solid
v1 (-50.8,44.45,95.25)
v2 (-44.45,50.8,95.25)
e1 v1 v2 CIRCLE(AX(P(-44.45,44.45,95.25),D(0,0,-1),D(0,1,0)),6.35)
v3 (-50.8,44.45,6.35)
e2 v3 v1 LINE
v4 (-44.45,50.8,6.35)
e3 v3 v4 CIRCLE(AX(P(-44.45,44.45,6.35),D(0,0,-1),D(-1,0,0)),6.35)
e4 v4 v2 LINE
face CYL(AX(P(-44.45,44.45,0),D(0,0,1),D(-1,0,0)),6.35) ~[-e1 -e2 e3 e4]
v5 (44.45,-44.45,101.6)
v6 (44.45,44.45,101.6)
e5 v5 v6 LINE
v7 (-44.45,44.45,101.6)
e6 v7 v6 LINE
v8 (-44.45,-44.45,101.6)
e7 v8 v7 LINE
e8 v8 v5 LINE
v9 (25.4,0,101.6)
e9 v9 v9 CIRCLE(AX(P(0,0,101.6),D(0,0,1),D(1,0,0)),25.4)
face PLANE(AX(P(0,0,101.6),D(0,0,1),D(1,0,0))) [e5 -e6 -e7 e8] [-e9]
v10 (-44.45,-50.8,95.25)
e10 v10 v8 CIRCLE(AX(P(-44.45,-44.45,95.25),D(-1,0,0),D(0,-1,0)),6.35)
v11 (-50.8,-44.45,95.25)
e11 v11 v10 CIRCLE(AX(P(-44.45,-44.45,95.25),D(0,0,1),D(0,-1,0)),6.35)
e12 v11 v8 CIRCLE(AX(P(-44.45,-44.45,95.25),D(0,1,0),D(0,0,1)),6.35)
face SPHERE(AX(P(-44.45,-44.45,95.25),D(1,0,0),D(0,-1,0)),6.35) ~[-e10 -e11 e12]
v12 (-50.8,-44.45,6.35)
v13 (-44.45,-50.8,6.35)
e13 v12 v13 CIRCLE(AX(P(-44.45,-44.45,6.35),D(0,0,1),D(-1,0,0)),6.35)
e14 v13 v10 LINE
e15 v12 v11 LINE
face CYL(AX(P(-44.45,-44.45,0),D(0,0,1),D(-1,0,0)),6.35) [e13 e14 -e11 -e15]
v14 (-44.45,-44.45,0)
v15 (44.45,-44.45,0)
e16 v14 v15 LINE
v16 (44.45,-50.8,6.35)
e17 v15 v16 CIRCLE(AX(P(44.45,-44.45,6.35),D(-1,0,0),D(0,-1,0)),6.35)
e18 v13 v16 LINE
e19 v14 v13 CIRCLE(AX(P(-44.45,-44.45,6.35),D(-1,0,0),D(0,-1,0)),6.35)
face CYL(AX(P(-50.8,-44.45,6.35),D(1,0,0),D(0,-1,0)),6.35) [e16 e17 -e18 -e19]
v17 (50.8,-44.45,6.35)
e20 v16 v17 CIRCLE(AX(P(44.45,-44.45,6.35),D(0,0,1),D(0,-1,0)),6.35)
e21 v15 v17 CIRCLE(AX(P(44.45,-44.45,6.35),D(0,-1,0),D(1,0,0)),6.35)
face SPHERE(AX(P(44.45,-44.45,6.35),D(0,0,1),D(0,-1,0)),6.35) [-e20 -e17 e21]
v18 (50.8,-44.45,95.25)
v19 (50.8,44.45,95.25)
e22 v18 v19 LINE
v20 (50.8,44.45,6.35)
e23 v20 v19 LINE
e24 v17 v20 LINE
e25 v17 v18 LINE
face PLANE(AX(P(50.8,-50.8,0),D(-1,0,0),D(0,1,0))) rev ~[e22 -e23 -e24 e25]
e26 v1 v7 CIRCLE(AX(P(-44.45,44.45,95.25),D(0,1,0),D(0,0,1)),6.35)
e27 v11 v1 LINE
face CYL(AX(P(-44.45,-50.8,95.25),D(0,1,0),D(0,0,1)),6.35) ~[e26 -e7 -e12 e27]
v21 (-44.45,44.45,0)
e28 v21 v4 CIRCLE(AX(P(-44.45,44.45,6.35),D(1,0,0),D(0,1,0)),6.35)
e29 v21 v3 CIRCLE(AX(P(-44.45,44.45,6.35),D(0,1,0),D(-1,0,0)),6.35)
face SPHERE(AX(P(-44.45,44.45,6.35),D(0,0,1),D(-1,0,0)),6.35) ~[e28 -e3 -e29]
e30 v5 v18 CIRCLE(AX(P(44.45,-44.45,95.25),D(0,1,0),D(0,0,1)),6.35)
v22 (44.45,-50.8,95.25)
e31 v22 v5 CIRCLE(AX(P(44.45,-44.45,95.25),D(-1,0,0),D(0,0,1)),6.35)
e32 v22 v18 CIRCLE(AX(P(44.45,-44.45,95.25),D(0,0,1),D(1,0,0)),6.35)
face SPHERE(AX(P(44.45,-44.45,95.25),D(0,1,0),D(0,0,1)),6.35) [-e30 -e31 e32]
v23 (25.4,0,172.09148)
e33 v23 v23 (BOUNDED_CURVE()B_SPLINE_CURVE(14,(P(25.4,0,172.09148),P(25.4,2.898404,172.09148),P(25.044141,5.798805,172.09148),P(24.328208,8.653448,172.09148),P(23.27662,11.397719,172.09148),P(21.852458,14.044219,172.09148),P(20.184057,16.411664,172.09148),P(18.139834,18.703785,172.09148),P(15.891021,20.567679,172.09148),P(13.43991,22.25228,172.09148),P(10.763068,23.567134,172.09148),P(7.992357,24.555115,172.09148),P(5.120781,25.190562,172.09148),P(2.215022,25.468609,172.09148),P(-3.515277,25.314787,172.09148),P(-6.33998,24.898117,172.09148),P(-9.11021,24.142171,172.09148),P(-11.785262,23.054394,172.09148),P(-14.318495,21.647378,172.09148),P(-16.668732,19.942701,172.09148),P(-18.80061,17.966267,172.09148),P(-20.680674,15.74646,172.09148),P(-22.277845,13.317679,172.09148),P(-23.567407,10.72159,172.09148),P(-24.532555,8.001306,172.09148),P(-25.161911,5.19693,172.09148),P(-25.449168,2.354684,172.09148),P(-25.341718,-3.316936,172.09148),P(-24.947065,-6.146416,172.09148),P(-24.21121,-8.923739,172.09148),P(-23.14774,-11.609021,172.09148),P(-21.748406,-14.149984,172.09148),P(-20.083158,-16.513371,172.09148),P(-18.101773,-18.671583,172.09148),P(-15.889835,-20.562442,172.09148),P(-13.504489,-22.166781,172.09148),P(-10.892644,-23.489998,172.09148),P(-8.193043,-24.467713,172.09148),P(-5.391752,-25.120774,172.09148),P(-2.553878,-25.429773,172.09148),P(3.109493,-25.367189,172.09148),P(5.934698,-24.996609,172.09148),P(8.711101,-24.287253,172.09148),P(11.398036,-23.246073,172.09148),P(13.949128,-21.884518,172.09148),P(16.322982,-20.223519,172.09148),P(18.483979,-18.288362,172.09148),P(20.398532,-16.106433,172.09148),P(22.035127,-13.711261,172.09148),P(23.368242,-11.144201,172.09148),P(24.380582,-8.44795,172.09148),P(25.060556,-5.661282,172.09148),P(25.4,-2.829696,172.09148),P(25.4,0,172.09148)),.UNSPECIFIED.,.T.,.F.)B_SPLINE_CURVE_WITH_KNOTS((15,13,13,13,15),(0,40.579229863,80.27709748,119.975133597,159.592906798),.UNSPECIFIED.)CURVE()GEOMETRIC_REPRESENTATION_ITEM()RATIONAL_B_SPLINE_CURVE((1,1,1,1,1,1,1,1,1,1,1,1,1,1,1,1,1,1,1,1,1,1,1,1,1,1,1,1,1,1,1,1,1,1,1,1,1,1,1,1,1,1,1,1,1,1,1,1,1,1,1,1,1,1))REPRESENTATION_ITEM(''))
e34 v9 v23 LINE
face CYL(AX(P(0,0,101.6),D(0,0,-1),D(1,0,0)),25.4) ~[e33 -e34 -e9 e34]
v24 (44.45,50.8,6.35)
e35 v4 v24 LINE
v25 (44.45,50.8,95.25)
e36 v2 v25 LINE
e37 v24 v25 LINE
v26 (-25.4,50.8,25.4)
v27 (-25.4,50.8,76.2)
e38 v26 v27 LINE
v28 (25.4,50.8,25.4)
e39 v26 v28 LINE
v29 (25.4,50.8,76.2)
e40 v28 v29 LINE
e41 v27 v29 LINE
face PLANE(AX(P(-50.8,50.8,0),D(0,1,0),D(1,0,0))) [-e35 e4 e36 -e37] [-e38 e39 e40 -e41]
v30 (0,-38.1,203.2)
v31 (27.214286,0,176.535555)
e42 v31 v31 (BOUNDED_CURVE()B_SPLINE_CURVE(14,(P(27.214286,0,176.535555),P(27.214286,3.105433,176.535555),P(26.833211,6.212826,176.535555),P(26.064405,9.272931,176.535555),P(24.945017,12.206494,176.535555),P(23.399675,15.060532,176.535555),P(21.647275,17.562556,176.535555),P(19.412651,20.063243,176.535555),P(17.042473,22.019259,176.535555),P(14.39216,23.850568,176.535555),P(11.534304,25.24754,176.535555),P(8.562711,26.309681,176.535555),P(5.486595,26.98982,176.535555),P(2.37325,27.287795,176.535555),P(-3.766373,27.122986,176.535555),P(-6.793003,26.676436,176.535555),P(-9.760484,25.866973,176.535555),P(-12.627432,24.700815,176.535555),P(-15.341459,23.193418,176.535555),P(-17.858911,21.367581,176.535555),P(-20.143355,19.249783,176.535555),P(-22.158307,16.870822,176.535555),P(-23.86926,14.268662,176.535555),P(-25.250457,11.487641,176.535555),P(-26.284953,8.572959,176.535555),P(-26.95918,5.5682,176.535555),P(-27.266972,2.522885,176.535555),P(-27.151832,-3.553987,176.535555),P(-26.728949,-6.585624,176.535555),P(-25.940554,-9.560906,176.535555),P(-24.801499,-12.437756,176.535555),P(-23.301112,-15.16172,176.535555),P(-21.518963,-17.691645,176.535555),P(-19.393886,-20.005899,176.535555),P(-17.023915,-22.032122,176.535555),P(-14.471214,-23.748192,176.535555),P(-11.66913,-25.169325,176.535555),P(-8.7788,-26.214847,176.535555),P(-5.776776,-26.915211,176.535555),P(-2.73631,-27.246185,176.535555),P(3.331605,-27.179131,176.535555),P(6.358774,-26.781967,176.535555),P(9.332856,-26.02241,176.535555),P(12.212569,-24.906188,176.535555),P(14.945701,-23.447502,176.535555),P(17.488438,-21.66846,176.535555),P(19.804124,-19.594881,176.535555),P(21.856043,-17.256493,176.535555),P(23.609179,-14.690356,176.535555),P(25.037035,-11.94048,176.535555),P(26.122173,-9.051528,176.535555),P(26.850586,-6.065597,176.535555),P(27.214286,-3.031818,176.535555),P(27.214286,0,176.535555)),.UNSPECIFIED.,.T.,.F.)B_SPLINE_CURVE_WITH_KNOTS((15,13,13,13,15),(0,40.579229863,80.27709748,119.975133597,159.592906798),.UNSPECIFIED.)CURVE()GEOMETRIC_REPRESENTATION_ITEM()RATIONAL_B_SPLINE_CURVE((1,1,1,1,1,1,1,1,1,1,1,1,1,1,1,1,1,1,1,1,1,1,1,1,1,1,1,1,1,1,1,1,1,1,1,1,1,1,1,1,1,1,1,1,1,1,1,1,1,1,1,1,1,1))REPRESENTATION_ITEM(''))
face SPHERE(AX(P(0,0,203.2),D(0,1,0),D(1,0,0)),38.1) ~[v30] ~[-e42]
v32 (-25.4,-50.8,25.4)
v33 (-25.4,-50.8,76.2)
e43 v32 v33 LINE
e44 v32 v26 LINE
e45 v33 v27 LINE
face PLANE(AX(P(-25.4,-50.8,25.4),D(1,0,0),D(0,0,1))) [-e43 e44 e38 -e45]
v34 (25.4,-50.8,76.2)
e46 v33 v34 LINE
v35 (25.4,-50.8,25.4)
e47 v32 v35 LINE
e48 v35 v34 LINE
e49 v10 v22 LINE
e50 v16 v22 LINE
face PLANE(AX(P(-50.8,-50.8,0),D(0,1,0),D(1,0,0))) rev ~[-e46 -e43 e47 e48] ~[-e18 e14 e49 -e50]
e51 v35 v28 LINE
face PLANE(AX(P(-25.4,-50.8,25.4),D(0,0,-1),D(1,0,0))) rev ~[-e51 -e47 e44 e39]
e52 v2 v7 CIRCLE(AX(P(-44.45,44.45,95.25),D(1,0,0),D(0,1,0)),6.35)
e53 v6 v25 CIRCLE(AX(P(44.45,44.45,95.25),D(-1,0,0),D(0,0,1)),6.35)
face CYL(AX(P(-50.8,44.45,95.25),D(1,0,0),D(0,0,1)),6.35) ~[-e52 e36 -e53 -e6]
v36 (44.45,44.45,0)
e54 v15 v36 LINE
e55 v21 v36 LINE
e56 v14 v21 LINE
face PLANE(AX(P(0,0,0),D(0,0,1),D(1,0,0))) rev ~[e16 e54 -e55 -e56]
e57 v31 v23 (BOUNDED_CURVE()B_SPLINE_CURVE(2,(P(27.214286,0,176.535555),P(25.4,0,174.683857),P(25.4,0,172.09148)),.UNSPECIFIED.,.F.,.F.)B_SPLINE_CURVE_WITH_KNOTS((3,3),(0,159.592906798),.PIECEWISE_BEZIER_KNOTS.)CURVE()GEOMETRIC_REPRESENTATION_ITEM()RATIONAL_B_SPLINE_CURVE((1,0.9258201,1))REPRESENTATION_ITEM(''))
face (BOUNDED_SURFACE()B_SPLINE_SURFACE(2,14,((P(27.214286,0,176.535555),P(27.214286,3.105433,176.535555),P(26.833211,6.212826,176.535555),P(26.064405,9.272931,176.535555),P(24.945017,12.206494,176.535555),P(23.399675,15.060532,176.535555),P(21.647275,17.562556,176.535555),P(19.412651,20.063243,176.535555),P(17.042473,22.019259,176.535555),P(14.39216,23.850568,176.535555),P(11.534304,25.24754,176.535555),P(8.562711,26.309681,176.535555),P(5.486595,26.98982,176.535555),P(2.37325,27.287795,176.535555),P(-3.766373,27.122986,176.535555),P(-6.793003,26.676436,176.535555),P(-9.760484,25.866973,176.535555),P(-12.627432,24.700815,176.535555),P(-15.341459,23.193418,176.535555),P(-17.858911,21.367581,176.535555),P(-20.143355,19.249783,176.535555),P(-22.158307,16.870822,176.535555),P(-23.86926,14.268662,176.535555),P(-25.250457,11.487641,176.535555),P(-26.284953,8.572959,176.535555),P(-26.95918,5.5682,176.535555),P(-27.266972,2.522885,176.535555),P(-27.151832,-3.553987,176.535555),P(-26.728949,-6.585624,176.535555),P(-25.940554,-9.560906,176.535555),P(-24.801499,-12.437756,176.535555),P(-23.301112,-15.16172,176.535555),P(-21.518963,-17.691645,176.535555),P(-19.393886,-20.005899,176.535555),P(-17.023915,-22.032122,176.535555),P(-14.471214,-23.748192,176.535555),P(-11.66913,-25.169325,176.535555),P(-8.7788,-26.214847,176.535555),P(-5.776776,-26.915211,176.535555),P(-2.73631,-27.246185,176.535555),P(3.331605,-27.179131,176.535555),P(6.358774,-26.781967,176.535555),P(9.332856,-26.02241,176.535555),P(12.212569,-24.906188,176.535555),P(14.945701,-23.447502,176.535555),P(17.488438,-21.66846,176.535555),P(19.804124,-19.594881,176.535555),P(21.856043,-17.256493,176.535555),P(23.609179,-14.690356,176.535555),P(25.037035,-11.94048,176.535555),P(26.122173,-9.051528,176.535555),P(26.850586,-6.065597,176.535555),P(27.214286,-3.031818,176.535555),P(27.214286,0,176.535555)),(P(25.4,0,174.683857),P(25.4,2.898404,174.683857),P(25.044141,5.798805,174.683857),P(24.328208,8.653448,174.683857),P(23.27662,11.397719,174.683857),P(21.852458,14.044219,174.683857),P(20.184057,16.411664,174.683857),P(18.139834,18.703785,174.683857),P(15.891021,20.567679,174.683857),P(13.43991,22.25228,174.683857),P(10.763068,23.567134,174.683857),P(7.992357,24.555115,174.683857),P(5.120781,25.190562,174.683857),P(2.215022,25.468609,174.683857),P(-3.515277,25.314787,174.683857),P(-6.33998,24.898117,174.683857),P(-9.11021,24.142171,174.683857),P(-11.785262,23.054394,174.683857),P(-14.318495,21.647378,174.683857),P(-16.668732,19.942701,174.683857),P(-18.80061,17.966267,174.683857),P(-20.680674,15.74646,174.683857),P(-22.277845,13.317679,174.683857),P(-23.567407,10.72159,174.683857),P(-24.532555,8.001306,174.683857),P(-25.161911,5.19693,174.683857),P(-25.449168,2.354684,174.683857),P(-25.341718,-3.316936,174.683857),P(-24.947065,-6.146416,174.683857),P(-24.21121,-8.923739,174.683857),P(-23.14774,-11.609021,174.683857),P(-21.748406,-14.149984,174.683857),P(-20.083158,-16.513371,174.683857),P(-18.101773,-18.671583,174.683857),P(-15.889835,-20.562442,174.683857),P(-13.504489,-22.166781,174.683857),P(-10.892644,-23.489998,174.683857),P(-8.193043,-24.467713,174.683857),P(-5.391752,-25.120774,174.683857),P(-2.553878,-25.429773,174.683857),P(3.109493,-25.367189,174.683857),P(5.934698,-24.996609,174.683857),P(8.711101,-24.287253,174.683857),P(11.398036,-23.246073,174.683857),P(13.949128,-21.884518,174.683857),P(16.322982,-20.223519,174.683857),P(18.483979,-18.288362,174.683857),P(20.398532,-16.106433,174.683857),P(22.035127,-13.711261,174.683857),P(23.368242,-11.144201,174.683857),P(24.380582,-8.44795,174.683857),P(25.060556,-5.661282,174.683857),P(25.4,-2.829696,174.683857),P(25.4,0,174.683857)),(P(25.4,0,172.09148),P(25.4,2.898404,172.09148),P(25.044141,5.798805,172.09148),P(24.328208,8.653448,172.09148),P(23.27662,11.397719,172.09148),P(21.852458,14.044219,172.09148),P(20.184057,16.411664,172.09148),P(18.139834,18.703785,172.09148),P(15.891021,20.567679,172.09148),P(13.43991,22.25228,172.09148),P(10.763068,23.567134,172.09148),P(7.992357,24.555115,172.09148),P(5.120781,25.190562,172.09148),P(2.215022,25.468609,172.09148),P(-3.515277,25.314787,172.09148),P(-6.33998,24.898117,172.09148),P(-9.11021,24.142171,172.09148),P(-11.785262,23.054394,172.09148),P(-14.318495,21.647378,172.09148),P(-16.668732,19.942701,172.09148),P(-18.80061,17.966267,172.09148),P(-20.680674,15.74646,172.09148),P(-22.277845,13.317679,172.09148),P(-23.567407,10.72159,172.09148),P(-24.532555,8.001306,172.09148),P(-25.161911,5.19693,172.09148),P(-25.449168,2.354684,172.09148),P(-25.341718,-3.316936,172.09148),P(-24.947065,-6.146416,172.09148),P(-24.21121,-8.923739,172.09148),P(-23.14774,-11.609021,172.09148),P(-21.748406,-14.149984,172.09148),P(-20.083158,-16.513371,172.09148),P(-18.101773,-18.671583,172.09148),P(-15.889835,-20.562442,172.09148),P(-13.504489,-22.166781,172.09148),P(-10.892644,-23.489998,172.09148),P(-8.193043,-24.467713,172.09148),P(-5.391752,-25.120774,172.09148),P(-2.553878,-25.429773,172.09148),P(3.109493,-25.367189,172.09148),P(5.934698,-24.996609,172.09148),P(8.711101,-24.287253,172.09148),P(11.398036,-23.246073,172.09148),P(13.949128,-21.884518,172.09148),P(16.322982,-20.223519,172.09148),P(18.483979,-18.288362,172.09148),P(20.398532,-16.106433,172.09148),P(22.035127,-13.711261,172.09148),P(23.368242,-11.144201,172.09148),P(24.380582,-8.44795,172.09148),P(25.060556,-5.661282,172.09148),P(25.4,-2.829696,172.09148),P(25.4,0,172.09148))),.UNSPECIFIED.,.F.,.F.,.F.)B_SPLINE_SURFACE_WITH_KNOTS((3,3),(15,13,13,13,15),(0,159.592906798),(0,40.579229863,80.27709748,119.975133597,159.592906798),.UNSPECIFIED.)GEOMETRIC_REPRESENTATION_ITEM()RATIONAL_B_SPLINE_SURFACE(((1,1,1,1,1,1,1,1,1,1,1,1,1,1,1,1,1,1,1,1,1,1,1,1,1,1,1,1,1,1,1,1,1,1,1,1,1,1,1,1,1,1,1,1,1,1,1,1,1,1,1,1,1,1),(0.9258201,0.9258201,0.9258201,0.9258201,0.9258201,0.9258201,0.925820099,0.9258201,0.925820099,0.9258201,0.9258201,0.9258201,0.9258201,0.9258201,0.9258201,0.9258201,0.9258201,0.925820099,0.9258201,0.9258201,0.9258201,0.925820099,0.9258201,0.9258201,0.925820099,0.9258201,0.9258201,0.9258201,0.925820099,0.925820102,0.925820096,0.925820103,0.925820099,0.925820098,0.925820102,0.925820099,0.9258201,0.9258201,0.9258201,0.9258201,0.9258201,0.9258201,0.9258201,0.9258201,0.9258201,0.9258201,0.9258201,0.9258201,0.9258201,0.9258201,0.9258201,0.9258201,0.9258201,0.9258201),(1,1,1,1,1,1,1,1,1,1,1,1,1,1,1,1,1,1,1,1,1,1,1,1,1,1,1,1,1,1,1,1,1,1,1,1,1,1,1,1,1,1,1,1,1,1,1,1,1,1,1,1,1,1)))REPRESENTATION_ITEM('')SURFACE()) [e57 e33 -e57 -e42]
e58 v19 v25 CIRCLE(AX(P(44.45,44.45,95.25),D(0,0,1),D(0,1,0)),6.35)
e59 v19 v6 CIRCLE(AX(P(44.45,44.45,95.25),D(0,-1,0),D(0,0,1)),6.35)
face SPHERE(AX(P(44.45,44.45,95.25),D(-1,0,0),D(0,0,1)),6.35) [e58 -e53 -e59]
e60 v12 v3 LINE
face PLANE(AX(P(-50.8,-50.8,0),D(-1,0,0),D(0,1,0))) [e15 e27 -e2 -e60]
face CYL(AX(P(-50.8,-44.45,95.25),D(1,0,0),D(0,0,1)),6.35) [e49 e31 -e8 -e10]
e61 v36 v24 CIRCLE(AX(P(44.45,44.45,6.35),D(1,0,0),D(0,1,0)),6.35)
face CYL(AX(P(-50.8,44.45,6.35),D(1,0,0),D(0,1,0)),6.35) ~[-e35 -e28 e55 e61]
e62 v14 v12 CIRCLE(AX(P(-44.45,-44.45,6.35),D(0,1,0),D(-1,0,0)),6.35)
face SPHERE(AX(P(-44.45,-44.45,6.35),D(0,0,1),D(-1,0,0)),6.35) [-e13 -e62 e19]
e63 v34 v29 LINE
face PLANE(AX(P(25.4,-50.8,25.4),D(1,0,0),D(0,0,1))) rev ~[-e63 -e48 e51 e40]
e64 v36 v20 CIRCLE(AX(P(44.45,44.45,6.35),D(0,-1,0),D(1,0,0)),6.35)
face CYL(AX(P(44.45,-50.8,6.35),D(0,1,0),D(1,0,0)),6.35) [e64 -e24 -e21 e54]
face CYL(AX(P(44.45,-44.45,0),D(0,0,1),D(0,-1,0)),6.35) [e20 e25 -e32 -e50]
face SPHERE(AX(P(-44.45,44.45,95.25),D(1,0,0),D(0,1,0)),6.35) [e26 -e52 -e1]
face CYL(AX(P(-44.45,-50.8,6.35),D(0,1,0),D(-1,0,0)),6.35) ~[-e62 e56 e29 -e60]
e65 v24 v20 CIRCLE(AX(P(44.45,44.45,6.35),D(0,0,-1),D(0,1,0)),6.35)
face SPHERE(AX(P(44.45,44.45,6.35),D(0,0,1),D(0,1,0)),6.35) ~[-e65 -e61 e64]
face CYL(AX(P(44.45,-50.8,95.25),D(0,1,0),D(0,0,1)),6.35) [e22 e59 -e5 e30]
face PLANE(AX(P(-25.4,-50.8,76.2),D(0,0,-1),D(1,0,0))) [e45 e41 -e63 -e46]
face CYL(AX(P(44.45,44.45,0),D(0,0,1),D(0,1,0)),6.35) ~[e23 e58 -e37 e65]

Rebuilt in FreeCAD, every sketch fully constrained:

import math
import FreeCAD as App
import Part
import Sketcher

V = App.Vector
Q = App.Units.Quantity


def edges_at(feature, points):
    """Names of the edges that pass closest to the given points."""
    edges = feature.Shape.Edges
    near = lambda p: min(range(len(edges)), key=lambda i: edges[i].distToShape(Part.Vertex(*p))[0])
    return sorted({f"Edge{near(p) + 1}" for p in points})


def add_polygon(sketch, points):
    """Adds a closed chain of lines whose ends are joined by coincident constraints."""
    first, n = sketch.GeometryCount, len(points)
    for a, b in zip(points, points[1:] + points[:1]):
        sketch.addGeometry(Part.LineSegment(App.Vector(*a, 0), App.Vector(*b, 0)), False)
    for i in range(n):
        sketch.addConstraint(Sketcher.Constraint("Coincident", first + i, 2, first + (i + 1) % n, 1))

doc = App.newDocument("Part")
body = doc.addObject("PartDesign::Body", "Body")

sketch1 = body.newObject("Sketcher::SketchObject", "Sketch")
sketch1.AttachmentSupport = (doc.getObject("XY_Plane"), [""])
sketch1.MapMode = "FlatFace"
add_polygon(sketch1, [(-51, 51), (-51, -51), (51, -51), (51, 51)])
sketch1.addConstraint([
    Sketcher.Constraint("Vertical", 0),
    Sketcher.Constraint("Horizontal", 1),
    Sketcher.Constraint("Vertical", 2),
    Sketcher.Constraint("Horizontal", 3),
    Sketcher.Constraint("Symmetric", 0, 2, 2, 2, -1, 1),
    Sketcher.Constraint("Equal", 3, 0),
    Sketcher.Constraint("DistanceX", 1, 1, 1, 2, Q("4 in")),
])
pad1 = body.newObject("PartDesign::Pad", "Pad")
pad1.Profile = sketch1
pad1.Length = Q("4 in")

sketch2 = body.newObject("Sketcher::SketchObject", "Sketch001")
sketch2.AttachmentSupport = (doc.getObject("XY_Plane"), [""])
sketch2.MapMode = "FlatFace"
sketch2.AttachmentOffset = App.Placement(V(0, 0, 4 * 25.4), App.Rotation())
sketch2.addGeometry(Part.Circle(V(0, 0, 0), V(0, 0, 1), 25), False)
sketch2.addConstraint([
    Sketcher.Constraint("Coincident", 0, 3, -1, 1),
    Sketcher.Constraint("Diameter", 0, Q("2 in")),
])
pad2 = body.newObject("PartDesign::Pad", "Pad001")
pad2.Profile = sketch2
pad2.Length = Q("4 in")

sketch3 = body.newObject("Sketcher::SketchObject", "Sketch002")
sketch3.AttachmentSupport = (doc.getObject("XY_Plane"), [""])
sketch3.MapMode = "FlatFace"
sketch3.AttachmentOffset = App.Placement(V(0, 0, 8 * 25.4), App.Rotation())
sketch3.addGeometry([
    Part.ArcOfCircle(Part.Circle(V(0, 0, 0), V(0, 0, 1), 38), math.radians(-90), math.radians(90)),
    Part.LineSegment(V(0, 38, 0), V(0, -38, 0)),
], False)
sketch3.addConstraint([
    Sketcher.Constraint("Coincident", 0, 1, 1, 2),
    Sketcher.Constraint("Coincident", 1, 1, 0, 2),
    Sketcher.Constraint("Vertical", 1),
    Sketcher.Constraint("Coincident", 0, 3, -1, 1),
    Sketcher.Constraint("PointOnObject", 0, 1, -2),
    Sketcher.Constraint("Radius", 0, Q("1.5 in")),
])
revolution = body.newObject("PartDesign::Revolution", "Revolution")
revolution.Profile = sketch3
revolution.ReferenceAxis = (sketch3, ["V_Axis"])
revolution.Angle = 360

sketch4 = body.newObject("Sketcher::SketchObject", "Sketch003")
sketch4.AttachmentSupport = (doc.getObject("XZ_Plane"), [""])
sketch4.MapMode = "FlatFace"
sketch4.AttachmentOffset = App.Placement(V(0, 0, 2 * 25.4), App.Rotation())
add_polygon(sketch4, [(-25, 76), (-25, 25), (25, 25), (25, 76)])
sketch4.addConstraint([
    Sketcher.Constraint("Vertical", 0),
    Sketcher.Constraint("Horizontal", 1),
    Sketcher.Constraint("Vertical", 2),
    Sketcher.Constraint("Horizontal", 3),
    Sketcher.Constraint("Equal", 3, 0),
    Sketcher.Constraint("DistanceX", 1, 1, 1, 2, Q("2 in")),
    Sketcher.Constraint("DistanceX", 0, 2, -1, 1, Q("1 in")),
    Sketcher.Constraint("DistanceY", -1, 1, 0, 2, Q("1 in")),
])
pocket1 = body.newObject("PartDesign::Pocket", "Pocket")
pocket1.Profile = sketch4
pocket1.Length = Q("4 in")
doc.recompute()

fillet = body.newObject("PartDesign::Fillet", "Fillet")
fillet.Base = (pocket1, edges_at(pocket1, [
    (0, 50.8, 101.6),
    (50.8, 0, 101.6),
    (0, -50.8, 101.6),
    (-50.8, 50.8, 50.8),
    (-50.8, -50.8, 50.8),
    (-50.8, 0, 0),
    (-50.8, 0, 101.6),
    (50.8, 50.8, 50.8),
    (0, 50.8, 0),
    (50.8, -50.8, 50.8),
    (0, -50.8, 0),
    (50.8, 0, 0),
    (-25.4, 0, 174.802),
]))
fillet.Radius = Q("0.25 in")

doc.recompute()
